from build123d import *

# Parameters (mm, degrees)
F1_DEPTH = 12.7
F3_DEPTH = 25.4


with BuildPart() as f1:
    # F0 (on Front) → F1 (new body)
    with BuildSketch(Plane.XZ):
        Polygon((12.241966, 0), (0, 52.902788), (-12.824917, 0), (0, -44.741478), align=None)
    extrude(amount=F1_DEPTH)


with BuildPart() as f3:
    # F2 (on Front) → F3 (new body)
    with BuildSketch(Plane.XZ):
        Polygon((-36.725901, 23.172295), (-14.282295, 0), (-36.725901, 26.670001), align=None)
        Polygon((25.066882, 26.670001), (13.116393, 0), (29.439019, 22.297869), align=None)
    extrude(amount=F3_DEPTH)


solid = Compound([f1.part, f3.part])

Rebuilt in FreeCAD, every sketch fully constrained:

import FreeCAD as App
import Part
import Sketcher
Q = App.Units.Quantity


def add_polygon(sketch, points):
    """Adds a closed chain of lines whose ends are joined by coincident constraints."""
    first, n = sketch.GeometryCount, len(points)
    for a, b in zip(points, points[1:] + points[:1]):
        sketch.addGeometry(Part.LineSegment(App.Vector(*a, 0), App.Vector(*b, 0)), False)
    for i in range(n):
        sketch.addConstraint(Sketcher.Constraint("Coincident", first + i, 2, first + (i + 1) % n, 1))

doc = App.newDocument("Part")
body = doc.addObject("PartDesign::Body", "Body")

# Sketch on XZ plane
sketch1 = body.newObject("Sketcher::SketchObject", "Sketch")
sketch1.AttachmentSupport = (doc.getObject("XZ_Plane"), [""])
sketch1.MapMode = "FlatFace"
add_polygon(sketch1, [(12, 0), (0, 53), (-13, 0), (0, -45)])  # lines 0-3
sketch1.addConstraint(Sketcher.Constraint("PointOnObject", 0, 2, -2))
sketch1.addConstraint(Sketcher.Constraint("PointOnObject", 1, 2, -1))
sketch1.addConstraint(Sketcher.Constraint("PointOnObject", 2, 2, -2))
sketch1.addConstraint(Sketcher.Constraint("PointOnObject", 3, 2, -1))
sketch1.addConstraint(Sketcher.Constraint("Distance", 1, 54.435131))
sketch1.addConstraint(Sketcher.Constraint("Distance", 3, 46.386049))
sketch1.addConstraint(Sketcher.Constraint("Distance", 0, 54.300743))
sketch1.addConstraint(Sketcher.Constraint("DistanceY", -1, 1, 0, 2, 52.902788))
pad1 = body.newObject("PartDesign::Pad", "Pad")
pad1.Profile = sketch1
pad1.Length = Q("0.5 in")
body2 = doc.addObject("PartDesign::Body", "Body001")
body2.AllowCompound = True

# Sketch on XZ plane
sketch2 = body2.newObject("Sketcher::SketchObject", "Sketch001")
sketch2.AttachmentSupport = (doc.getObject("XZ_Plane001"), [""])
sketch2.MapMode = "FlatFace"
add_polygon(sketch2, [(-36.7, 23.2), (-14.3, 0), (-36.7, 26.7)])  # lines 0-2
add_polygon(sketch2, [(25.1, 26.7), (13.1, 0), (29.4, 22.3)])  # lines 3-5
sketch2.addConstraint(Sketcher.Constraint("Vertical", 2))
sketch2.addConstraint(Sketcher.Constraint("PointOnObject", 0, 2, -1))
sketch2.addConstraint(Sketcher.Constraint("PointOnObject", 3, 2, -1))
sketch2.addConstraint(Sketcher.Constraint("Horizontal", 1, 2, 5, 2))
sketch2.addConstraint(Sketcher.Constraint("DistanceY", -1, 1, 1, 2, Q("1.05 in")))
sketch2.addConstraint(Sketcher.Constraint("DistanceX", 1, 2, -1, 1, 36.725901))
sketch2.addConstraint(Sketcher.Constraint("Distance", 0, 32.259428))
sketch2.addConstraint(Sketcher.Constraint("Distance", 4, 27.633731))
sketch2.addConstraint(Sketcher.Constraint("Distance", 5, 6.183132))
sketch2.addConstraint(Sketcher.Constraint("DistanceY", 2, 2, 2, 1, 3.497706))
sketch2.addConstraint(Sketcher.Constraint("DistanceX", -1, 1, 4, 2, 29.439019))
sketch2.addConstraint(Sketcher.Constraint("DistanceY", -1, 1, 4, 2, 22.297869))
pad2 = body2.newObject("PartDesign::Pad", "Pad001")
pad2.Profile = sketch2
pad2.Length = Q("1 in")

doc.recompute()
